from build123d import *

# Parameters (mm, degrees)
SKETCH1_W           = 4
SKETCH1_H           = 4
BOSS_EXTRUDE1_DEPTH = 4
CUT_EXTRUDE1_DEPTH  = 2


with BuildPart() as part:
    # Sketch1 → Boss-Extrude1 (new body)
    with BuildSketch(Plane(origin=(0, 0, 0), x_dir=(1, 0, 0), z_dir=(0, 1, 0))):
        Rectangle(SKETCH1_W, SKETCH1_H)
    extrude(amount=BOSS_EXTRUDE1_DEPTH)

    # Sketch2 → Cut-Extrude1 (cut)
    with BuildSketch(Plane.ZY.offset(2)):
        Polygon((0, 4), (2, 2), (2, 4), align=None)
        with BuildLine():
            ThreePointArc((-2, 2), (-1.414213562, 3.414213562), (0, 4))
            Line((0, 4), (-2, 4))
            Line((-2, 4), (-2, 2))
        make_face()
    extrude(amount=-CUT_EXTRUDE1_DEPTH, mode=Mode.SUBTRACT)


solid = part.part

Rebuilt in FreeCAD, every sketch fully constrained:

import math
import FreeCAD as App
import Part
import Sketcher
from FreeCAD import Vector


def add_polygon(sketch, points):
    """Adds a closed chain of lines whose ends are joined by coincident constraints."""
    first, n = sketch.GeometryCount, len(points)
    for a, b in zip(points, points[1:] + points[:1]):
        sketch.addGeometry(Part.LineSegment(App.Vector(*a, 0), App.Vector(*b, 0)), False)
    for i in range(n):
        sketch.addConstraint(Sketcher.Constraint("Coincident", first + i, 2, first + (i + 1) % n, 1))

doc = App.newDocument("Part")
body = doc.addObject("PartDesign::Body", "Body")

# Sketch on XZ plane
sketch1 = doc.addObject("Sketcher::SketchObject", "Sketch")
body.addObject(sketch1)
sketch1.AttachmentSupport = (doc.XZ_Plane, [""])
sketch1.MapMode = "FlatFace"
add_polygon(sketch1, [(-2, -2), (-2, 2), (2, 2), (2, -2)])  # lines 0-3
sketch1.addConstraint([
    Sketcher.Constraint("Vertical", 0),
    Sketcher.Constraint("Horizontal", 1),
    Sketcher.Constraint("Vertical", 2),
    Sketcher.Constraint("Horizontal", 3),
    Sketcher.Constraint("Symmetric", 0, 2, 2, 2, -1, 1),
    Sketcher.Constraint("Equal", 3, 0),
    Sketcher.Constraint("DistanceX", 1, 1, 1, 2, 4.0),
])
pad1 = doc.addObject("PartDesign::Pad", "Pad")
body.addObject(pad1)
pad1.Profile = sketch1
pad1.Length = 4
pad1.Reversed = True

# Sketch on YZ plane
sketch2 = doc.addObject("Sketcher::SketchObject", "Sketch001")
body.addObject(sketch2)
sketch2.AttachmentSupport = (doc.YZ_Plane, [""])
sketch2.MapMode = "FlatFace"
sketch2.AttachmentOffset = App.Placement(Vector(0, 0, -2), App.Rotation())
add_polygon(sketch2, [(4, 0), (2, 2), (4, 2)])  # lines 0-2
sketch2.addGeometry(Part.ArcOfCircle(Part.Circle(Vector(2, 0, 0), Vector(0, 0, 1), 2), math.radians(-90), math.radians(0)), False)  # 3
sketch2.addGeometry(Part.LineSegment(Vector(4, 0, 0), Vector(4, -2, 0)), False)  # 4
sketch2.addGeometry(Part.LineSegment(Vector(4, -2, 0), Vector(2, -2, 0)), False)  # 5
sketch2.addConstraint([
    Sketcher.Constraint("Tangent", 3, 2, 4, 1),
    Sketcher.Constraint("Coincident", 4, 2, 5, 1),
    Sketcher.Constraint("Tangent", 5, 2, 3, 1),
    Sketcher.Constraint("Horizontal", 1),
    Sketcher.Constraint("Vertical", 2),
    Sketcher.Constraint("Vertical", 4),
    Sketcher.Constraint("Horizontal", 5),
    Sketcher.Constraint("Coincident", 3, 2, 2, 2),
    Sketcher.Constraint("Symmetric", 0, 2, 5, 2, -1),
    Sketcher.Constraint("PointOnObject", 3, 3, -1),
    Sketcher.Constraint("Radius", 3, 2.0),
    Sketcher.Constraint("DistanceX", -1, 1, 3, 3, 2.0),
])
pocket1 = doc.addObject("PartDesign::Pocket", "Pocket")
body.addObject(pocket1)
pocket1.Profile = sketch2
pocket1.Length = 2
pocket1.Reversed = True

doc.recompute()
